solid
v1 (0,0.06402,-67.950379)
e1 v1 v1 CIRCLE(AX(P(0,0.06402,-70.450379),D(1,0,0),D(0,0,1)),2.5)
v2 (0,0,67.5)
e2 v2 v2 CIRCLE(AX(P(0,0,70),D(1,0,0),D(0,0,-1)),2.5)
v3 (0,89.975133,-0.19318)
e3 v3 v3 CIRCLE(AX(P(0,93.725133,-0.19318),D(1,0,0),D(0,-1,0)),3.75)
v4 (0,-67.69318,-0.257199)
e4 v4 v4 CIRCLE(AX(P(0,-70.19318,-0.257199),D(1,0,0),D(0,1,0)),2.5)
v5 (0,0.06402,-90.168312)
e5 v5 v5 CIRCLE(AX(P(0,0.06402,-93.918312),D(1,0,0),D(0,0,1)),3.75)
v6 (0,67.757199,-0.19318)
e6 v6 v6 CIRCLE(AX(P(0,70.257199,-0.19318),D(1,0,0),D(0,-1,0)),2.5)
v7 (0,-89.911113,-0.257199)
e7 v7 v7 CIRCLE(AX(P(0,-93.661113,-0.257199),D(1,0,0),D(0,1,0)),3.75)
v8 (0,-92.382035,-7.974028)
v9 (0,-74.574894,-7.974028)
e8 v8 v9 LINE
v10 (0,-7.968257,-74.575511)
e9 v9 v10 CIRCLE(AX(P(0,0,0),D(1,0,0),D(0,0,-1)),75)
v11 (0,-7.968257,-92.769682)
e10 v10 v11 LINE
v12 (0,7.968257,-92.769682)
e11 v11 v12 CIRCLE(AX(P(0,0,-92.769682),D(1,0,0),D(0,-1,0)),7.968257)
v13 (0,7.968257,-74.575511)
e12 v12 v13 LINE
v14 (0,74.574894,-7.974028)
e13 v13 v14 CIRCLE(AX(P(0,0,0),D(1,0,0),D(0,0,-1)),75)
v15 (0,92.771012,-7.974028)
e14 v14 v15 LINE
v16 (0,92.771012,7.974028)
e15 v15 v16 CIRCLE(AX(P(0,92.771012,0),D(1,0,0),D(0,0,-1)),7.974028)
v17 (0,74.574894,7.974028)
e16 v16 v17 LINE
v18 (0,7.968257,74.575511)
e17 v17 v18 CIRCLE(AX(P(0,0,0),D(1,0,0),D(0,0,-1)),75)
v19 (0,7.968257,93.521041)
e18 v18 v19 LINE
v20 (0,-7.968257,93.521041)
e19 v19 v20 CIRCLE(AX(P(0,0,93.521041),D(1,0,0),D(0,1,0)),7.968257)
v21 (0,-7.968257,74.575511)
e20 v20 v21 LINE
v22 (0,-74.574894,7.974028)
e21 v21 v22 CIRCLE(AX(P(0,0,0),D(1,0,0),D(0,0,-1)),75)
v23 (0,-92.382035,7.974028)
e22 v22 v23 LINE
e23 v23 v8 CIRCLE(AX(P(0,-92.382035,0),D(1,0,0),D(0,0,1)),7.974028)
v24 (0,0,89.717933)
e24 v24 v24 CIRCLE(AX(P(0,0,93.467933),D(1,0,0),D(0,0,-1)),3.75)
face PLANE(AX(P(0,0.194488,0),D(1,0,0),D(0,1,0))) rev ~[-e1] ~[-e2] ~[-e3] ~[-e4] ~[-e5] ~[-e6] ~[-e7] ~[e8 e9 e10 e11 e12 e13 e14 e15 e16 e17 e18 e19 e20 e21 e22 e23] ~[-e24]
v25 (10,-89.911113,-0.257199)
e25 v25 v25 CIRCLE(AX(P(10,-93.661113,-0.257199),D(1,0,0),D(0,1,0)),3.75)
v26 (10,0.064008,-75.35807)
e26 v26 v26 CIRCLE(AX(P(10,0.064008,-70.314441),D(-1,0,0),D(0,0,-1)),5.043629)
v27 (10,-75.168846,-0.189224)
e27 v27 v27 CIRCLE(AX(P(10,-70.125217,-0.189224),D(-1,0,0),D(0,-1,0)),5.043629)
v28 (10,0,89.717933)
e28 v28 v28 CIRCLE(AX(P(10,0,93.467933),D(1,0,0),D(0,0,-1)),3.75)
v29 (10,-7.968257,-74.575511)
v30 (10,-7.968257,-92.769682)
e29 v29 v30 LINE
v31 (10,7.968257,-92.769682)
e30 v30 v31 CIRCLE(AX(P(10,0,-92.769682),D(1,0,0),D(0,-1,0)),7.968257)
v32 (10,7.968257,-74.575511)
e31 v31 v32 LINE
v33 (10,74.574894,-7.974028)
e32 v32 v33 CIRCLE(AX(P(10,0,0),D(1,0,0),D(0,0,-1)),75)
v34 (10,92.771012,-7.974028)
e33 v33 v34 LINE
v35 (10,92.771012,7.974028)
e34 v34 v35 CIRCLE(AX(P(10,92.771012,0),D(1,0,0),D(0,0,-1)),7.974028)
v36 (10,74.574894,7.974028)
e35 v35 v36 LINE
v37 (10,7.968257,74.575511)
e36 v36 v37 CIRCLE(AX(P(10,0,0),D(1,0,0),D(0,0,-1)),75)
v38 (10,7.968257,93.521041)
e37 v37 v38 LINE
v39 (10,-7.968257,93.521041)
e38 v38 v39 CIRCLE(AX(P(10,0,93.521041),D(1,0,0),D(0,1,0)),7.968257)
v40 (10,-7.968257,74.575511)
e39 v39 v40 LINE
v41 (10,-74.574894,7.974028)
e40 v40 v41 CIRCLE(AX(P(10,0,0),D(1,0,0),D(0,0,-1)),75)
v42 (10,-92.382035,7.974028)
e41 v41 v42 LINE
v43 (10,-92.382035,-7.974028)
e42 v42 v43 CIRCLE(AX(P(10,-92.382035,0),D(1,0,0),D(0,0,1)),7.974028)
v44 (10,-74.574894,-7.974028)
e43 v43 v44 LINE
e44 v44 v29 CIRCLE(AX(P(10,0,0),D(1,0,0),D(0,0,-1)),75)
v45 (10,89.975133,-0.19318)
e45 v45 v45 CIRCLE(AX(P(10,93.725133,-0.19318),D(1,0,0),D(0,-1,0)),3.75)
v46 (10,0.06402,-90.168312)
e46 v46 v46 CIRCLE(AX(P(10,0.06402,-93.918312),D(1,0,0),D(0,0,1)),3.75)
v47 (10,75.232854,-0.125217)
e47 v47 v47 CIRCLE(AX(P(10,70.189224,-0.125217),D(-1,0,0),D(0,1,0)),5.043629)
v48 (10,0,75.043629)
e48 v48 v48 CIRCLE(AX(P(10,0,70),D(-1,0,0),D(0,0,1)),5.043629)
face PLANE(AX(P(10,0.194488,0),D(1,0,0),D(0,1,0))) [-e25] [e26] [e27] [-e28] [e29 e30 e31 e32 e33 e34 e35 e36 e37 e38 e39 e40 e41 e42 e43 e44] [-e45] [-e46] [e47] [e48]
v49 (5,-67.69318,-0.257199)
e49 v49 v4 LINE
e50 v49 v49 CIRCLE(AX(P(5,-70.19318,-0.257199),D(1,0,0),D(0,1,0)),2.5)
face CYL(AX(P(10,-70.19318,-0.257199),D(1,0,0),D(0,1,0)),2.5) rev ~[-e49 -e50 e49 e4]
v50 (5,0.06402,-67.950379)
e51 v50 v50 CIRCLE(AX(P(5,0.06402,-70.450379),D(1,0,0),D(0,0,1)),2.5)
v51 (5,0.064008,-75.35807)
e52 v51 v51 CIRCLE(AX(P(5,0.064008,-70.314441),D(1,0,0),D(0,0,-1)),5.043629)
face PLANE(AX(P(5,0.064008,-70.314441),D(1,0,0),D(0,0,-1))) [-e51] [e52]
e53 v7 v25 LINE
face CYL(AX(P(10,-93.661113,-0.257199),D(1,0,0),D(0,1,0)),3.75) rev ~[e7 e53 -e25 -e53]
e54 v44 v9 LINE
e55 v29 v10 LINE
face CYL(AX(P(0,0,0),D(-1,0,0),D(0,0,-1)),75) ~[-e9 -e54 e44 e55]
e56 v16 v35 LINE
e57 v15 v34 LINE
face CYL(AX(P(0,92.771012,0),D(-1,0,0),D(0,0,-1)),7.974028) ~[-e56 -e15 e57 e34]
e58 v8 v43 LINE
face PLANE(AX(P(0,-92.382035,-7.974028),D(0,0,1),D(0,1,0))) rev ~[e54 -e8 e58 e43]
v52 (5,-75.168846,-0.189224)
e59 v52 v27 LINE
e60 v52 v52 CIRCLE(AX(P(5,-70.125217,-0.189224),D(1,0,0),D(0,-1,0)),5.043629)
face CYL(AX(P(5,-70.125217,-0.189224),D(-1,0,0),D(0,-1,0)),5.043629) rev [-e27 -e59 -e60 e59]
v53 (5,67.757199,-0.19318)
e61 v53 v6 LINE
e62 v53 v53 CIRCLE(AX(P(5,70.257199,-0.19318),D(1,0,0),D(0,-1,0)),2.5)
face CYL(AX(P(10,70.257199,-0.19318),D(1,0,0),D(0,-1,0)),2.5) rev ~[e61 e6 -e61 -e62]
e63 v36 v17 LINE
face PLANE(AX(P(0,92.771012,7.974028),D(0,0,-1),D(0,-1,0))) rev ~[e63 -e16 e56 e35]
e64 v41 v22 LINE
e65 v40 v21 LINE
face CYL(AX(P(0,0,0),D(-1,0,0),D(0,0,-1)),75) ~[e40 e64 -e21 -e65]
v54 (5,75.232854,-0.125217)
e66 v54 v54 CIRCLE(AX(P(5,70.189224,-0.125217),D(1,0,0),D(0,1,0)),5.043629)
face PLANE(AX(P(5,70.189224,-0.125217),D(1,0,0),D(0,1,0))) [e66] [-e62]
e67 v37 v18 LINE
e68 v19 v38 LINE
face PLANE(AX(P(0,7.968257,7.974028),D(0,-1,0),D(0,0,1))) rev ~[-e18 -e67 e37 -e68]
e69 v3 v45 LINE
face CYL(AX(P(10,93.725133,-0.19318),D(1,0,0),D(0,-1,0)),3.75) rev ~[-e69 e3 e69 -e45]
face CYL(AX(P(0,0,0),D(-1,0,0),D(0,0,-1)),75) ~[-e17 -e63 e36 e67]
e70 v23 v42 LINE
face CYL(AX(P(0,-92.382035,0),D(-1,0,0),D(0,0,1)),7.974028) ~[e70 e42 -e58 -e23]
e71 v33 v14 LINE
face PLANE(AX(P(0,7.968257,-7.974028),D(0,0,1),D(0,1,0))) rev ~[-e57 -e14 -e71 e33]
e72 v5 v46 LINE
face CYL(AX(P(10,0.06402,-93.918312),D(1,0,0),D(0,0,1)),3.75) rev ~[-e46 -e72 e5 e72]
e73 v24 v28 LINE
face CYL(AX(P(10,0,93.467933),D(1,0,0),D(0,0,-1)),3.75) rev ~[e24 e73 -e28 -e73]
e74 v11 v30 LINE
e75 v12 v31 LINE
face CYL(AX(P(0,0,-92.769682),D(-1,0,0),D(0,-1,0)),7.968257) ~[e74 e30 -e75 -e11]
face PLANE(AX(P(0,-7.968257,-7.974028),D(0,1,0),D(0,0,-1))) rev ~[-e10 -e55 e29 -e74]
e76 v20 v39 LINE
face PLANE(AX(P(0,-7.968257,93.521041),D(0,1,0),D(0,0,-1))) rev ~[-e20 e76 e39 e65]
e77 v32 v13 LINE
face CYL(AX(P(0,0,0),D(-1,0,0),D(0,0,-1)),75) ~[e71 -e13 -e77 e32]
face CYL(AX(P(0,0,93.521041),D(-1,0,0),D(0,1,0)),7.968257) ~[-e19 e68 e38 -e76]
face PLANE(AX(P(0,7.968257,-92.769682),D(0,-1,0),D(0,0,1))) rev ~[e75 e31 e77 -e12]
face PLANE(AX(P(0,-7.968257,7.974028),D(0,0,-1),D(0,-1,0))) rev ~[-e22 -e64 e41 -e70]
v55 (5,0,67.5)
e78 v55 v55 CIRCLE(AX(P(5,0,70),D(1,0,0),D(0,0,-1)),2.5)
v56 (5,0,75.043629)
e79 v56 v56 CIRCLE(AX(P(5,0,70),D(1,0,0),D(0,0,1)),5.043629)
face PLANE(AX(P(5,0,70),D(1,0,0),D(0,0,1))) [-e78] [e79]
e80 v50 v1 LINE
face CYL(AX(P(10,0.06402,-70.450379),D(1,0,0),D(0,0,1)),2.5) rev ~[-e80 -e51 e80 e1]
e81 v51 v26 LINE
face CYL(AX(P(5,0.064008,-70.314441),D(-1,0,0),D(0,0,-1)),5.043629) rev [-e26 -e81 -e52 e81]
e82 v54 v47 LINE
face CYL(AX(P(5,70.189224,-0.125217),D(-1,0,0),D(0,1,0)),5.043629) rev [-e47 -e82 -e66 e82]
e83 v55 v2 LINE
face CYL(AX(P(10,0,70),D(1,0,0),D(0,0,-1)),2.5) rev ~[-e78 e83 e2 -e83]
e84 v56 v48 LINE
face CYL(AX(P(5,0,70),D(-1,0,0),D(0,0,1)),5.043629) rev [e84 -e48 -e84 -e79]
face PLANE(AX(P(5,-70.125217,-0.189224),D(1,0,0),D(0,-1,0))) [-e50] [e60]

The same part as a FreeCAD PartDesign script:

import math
import FreeCAD as App
import Part
import Sketcher
from FreeCAD import Vector
Q = App.Units.Quantity

doc = App.newDocument("Part")
params = doc.addObject("Spreadsheet::Sheet", "Params")
for row, (alias, value) in enumerate([
    ("sketch1_diameter", "150 mm"),
    ("pad1_length", "10 mm"),
    ("pad2_length", "10 mm"),
    ("sketch3_diameter", "5 mm"),
    ("sketch3_diameter2", "7.5 mm"),
    ("pocket1_length", "288.702918 mm"),
    ("pocket2_length", "149.351459 mm"),
], start=1):
    params.set(f"A{row}", alias)
    params.set(f"B{row}", "=" + value)
    params.setAlias(f"B{row}", alias)

body = doc.addObject("PartDesign::Body", "Body")

# Sketch on YZ plane
sketch1 = doc.addObject("Sketcher::SketchObject", "Sketch")
body.addObject(sketch1)
sketch1.AttachmentSupport = (doc.YZ_Plane, [""])
sketch1.MapMode = "FlatFace"
sketch1.addGeometry(Part.Circle(Vector(0, 0, 0), Vector(0, 0, 1), 75), False)
sketch1.addConstraint(Sketcher.Constraint("Coincident", 0, 3, -1, 1))
sketch1.addConstraint(Sketcher.Constraint("Diameter", 0, Q("150 mm")))
sketch1.setExpression("Constraints[1]", "Params.sketch1_diameter")
pad1 = doc.addObject("PartDesign::Pad", "Pad")
body.addObject(pad1)
pad1.Profile = sketch1
pad1.setExpression("Length", "Params.pad1_length")

# Sketch on YZ plane
sketch2 = doc.addObject("Sketcher::SketchObject", "Sketch001")
body.addObject(sketch2)
sketch2.AttachmentSupport = (doc.YZ_Plane, [""])
sketch2.MapMode = "FlatFace"
sketch2.addGeometry(Part.ArcOfCircle(Part.Circle(Vector(92.771012, 0, 0), Vector(0, 0, 1), 7.974028), math.radians(-90), math.radians(90)), False)
sketch2.addGeometry(Part.LineSegment(Vector(92.771012, -7.974028, 0), Vector(7.968257, -7.974028, 0)), False)
sketch2.addGeometry(Part.LineSegment(Vector(7.968257, -7.974028, 0), Vector(7.968257, -92.769682, 0)), False)
sketch2.addGeometry(Part.ArcOfCircle(Part.Circle(Vector(0, -92.769682, 0), Vector(0, 0, 1), 7.968257), math.radians(180), math.radians(360)), False)
sketch2.addGeometry(Part.LineSegment(Vector(-7.968257, -92.769682, 0), Vector(-7.968257, -7.974028, 0)), False)
sketch2.addGeometry(Part.LineSegment(Vector(-7.968257, -7.974028, 0), Vector(-92.382035, -7.974028, 0)), False)
sketch2.addGeometry(Part.ArcOfCircle(Part.Circle(Vector(-92.382035, 0, 0), Vector(0, 0, 1), 7.974028), math.radians(90), math.radians(270)), False)
sketch2.addGeometry(Part.LineSegment(Vector(-92.382035, 7.974028, 0), Vector(-7.968257, 7.974028, 0)), False)
sketch2.addGeometry(Part.LineSegment(Vector(-7.968257, 7.974028, 0), Vector(-7.968257, 93.521041, 0)), False)
sketch2.addGeometry(Part.ArcOfCircle(Part.Circle(Vector(0, 93.521041, 0), Vector(0, 0, 1), 7.968257), math.radians(0), math.radians(180)), False)
sketch2.addGeometry(Part.LineSegment(Vector(7.968257, 93.521041, 0), Vector(7.968257, 7.974028, 0)), False)
sketch2.addGeometry(Part.LineSegment(Vector(7.968257, 7.974028, 0), Vector(92.771012, 7.974028, 0)), False)
sketch2.addConstraint(Sketcher.Constraint("Tangent", 0, 1, 1, 1))
sketch2.addConstraint(Sketcher.Constraint("Coincident", 1, 2, 2, 1))
sketch2.addConstraint(Sketcher.Constraint("Tangent", 2, 2, 3, 2))
sketch2.addConstraint(Sketcher.Constraint("Tangent", 3, 1, 4, 1))
sketch2.addConstraint(Sketcher.Constraint("Coincident", 4, 2, 5, 1))
sketch2.addConstraint(Sketcher.Constraint("Tangent", 5, 2, 6, 2))
sketch2.addConstraint(Sketcher.Constraint("Tangent", 6, 1, 7, 1))
sketch2.addConstraint(Sketcher.Constraint("Coincident", 7, 2, 8, 1))
sketch2.addConstraint(Sketcher.Constraint("Tangent", 8, 2, 9, 2))
sketch2.addConstraint(Sketcher.Constraint("Tangent", 9, 1, 10, 1))
sketch2.addConstraint(Sketcher.Constraint("Coincident", 10, 2, 11, 1))
sketch2.addConstraint(Sketcher.Constraint("Tangent", 11, 2, 0, 2))
sketch2.addConstraint(Sketcher.Constraint("Horizontal", 1))
sketch2.addConstraint(Sketcher.Constraint("Vertical", 2))
sketch2.addConstraint(Sketcher.Constraint("Vertical", 4))
sketch2.addConstraint(Sketcher.Constraint("Horizontal", 5))
sketch2.addConstraint(Sketcher.Constraint("Horizontal", 7))
sketch2.addConstraint(Sketcher.Constraint("Vertical", 8))
sketch2.addConstraint(Sketcher.Constraint("Vertical", 10))
sketch2.addConstraint(Sketcher.Constraint("Horizontal", 11))
sketch2.addConstraint(Sketcher.Constraint("Equal", 0, 6))
sketch2.addConstraint(Sketcher.Constraint("Equal", 3, 9))
sketch2.addConstraint(Sketcher.Constraint("Symmetric", 1, 2, 7, 2, -1, 1))
sketch2.addConstraint(Sketcher.Constraint("Symmetric", 1, 2, 4, 2, -2))
sketch2.addConstraint(Sketcher.Constraint("Radius", 0, Q("7.974028 mm")))
sketch2.addConstraint(Sketcher.Constraint("Radius", 3, Q("7.968257 mm")))
sketch2.addConstraint(Sketcher.Constraint("DistanceX", 5, 2, 5, 1, Q("84.413779 mm")))
sketch2.addConstraint(Sketcher.Constraint("DistanceX", 1, 2, 1, 1, Q("84.802756 mm")))
sketch2.addConstraint(Sketcher.Constraint("DistanceY", 2, 2, 2, 1, Q("84.795654 mm")))
sketch2.addConstraint(Sketcher.Constraint("DistanceY", 8, 1, 8, 2, Q("85.547013 mm")))
pad2 = doc.addObject("PartDesign::Pad", "Pad001")
body.addObject(pad2)
pad2.Profile = sketch2
pad2.setExpression("Length", "Params.pad2_length")

# Sketch on YZ plane
sketch3 = doc.addObject("Sketcher::SketchObject", "Sketch002")
body.addObject(sketch3)
sketch3.AttachmentSupport = (doc.YZ_Plane, [""])
sketch3.MapMode = "FlatFace"
sketch3.AttachmentOffset = App.Placement(Vector(0, 0, 10), App.Rotation())
sketch3.addGeometry(Part.Circle(Vector(0, 70, 0), Vector(0, 0, 1), 2.5), False)
sketch3.addGeometry(Part.Circle(Vector(0, 93.467933, 0), Vector(0, 0, 1), 3.75), False)
sketch3.addConstraint(Sketcher.Constraint("PointOnObject", 0, 3, -2))
sketch3.addConstraint(Sketcher.Constraint("PointOnObject", 1, 3, -2))
sketch3.addConstraint(Sketcher.Constraint("Diameter", 0, Q("5 mm")))
sketch3.addConstraint(Sketcher.Constraint("Diameter", 1, Q("7.5 mm")))
sketch3.addConstraint(Sketcher.Constraint("DistanceY", -1, 1, 0, 3, Q("70 mm")))
sketch3.addConstraint(Sketcher.Constraint("DistanceY", -1, 1, 1, 3, Q("93.467933 mm")))
sketch3.setExpression("Constraints[2]", "Params.sketch3_diameter")
sketch3.setExpression("Constraints[3]", "Params.sketch3_diameter2")
pocket1 = doc.addObject("PartDesign::Pocket", "Pocket")
body.addObject(pocket1)
pocket1.Profile = sketch3
pocket1.setExpression("Length", "Params.pocket1_length")
pocket1.Midplane = True
doc.recompute()

datumline = doc.addObject("PartDesign::Line", "DatumLine")
body.addObject(datumline)
datumline.Placement = App.Placement(Vector(0, 0.03201, -0.225189), App.Rotation(Vector(0, 0, 1), Vector(1, 0, 0)))
polarpattern = doc.addObject("PartDesign::PolarPattern", "PolarPattern")
body.addObject(polarpattern)
polarpattern.Originals = [pocket1]
polarpattern.Axis = (datumline, [""])
polarpattern.Angle = 360
polarpattern.Occurrences = 4
body.Tip = polarpattern

# Sketch on YZ plane
sketch4 = doc.addObject("Sketcher::SketchObject", "Sketch003")
body.addObject(sketch4)
sketch4.AttachmentSupport = (doc.YZ_Plane, [""])
sketch4.MapMode = "FlatFace"
sketch4.AttachmentOffset = App.Placement(Vector(0, 0, 5), App.Rotation())
sketch4.addGeometry(Part.Circle(Vector(0, 70, 0), Vector(0, 0, 1), 5.043629), False)
sketch4.addConstraint(Sketcher.Constraint("PointOnObject", 0, 3, -2))
sketch4.addConstraint(Sketcher.Constraint("DistanceY", -1, 1, 0, 3, Q("70 mm")))
sketch4.addConstraint(Sketcher.Constraint("Diameter", 0, Q("10.087259 mm")))
pocket2 = doc.addObject("PartDesign::Pocket", "Pocket001")
body.addObject(pocket2)
pocket2.Profile = sketch4
pocket2.setExpression("Length", "Params.pocket2_length")
pocket2.Reversed = True
doc.recompute()

datumline2 = doc.addObject("PartDesign::Line", "DatumLine001")
body.addObject(datumline2)
datumline2.Placement = App.Placement(Vector(0, 0.032004, -0.15722), App.Rotation(Vector(0, 0, 1), Vector(1, 0, 0)))
polarpattern2 = doc.addObject("PartDesign::PolarPattern", "PolarPattern001")
body.addObject(polarpattern2)
polarpattern2.Originals = [pocket2]
polarpattern2.Axis = (datumline2, [""])
polarpattern2.Angle = 360
polarpattern2.Occurrences = 4
body.Tip = polarpattern2

doc.recompute()
